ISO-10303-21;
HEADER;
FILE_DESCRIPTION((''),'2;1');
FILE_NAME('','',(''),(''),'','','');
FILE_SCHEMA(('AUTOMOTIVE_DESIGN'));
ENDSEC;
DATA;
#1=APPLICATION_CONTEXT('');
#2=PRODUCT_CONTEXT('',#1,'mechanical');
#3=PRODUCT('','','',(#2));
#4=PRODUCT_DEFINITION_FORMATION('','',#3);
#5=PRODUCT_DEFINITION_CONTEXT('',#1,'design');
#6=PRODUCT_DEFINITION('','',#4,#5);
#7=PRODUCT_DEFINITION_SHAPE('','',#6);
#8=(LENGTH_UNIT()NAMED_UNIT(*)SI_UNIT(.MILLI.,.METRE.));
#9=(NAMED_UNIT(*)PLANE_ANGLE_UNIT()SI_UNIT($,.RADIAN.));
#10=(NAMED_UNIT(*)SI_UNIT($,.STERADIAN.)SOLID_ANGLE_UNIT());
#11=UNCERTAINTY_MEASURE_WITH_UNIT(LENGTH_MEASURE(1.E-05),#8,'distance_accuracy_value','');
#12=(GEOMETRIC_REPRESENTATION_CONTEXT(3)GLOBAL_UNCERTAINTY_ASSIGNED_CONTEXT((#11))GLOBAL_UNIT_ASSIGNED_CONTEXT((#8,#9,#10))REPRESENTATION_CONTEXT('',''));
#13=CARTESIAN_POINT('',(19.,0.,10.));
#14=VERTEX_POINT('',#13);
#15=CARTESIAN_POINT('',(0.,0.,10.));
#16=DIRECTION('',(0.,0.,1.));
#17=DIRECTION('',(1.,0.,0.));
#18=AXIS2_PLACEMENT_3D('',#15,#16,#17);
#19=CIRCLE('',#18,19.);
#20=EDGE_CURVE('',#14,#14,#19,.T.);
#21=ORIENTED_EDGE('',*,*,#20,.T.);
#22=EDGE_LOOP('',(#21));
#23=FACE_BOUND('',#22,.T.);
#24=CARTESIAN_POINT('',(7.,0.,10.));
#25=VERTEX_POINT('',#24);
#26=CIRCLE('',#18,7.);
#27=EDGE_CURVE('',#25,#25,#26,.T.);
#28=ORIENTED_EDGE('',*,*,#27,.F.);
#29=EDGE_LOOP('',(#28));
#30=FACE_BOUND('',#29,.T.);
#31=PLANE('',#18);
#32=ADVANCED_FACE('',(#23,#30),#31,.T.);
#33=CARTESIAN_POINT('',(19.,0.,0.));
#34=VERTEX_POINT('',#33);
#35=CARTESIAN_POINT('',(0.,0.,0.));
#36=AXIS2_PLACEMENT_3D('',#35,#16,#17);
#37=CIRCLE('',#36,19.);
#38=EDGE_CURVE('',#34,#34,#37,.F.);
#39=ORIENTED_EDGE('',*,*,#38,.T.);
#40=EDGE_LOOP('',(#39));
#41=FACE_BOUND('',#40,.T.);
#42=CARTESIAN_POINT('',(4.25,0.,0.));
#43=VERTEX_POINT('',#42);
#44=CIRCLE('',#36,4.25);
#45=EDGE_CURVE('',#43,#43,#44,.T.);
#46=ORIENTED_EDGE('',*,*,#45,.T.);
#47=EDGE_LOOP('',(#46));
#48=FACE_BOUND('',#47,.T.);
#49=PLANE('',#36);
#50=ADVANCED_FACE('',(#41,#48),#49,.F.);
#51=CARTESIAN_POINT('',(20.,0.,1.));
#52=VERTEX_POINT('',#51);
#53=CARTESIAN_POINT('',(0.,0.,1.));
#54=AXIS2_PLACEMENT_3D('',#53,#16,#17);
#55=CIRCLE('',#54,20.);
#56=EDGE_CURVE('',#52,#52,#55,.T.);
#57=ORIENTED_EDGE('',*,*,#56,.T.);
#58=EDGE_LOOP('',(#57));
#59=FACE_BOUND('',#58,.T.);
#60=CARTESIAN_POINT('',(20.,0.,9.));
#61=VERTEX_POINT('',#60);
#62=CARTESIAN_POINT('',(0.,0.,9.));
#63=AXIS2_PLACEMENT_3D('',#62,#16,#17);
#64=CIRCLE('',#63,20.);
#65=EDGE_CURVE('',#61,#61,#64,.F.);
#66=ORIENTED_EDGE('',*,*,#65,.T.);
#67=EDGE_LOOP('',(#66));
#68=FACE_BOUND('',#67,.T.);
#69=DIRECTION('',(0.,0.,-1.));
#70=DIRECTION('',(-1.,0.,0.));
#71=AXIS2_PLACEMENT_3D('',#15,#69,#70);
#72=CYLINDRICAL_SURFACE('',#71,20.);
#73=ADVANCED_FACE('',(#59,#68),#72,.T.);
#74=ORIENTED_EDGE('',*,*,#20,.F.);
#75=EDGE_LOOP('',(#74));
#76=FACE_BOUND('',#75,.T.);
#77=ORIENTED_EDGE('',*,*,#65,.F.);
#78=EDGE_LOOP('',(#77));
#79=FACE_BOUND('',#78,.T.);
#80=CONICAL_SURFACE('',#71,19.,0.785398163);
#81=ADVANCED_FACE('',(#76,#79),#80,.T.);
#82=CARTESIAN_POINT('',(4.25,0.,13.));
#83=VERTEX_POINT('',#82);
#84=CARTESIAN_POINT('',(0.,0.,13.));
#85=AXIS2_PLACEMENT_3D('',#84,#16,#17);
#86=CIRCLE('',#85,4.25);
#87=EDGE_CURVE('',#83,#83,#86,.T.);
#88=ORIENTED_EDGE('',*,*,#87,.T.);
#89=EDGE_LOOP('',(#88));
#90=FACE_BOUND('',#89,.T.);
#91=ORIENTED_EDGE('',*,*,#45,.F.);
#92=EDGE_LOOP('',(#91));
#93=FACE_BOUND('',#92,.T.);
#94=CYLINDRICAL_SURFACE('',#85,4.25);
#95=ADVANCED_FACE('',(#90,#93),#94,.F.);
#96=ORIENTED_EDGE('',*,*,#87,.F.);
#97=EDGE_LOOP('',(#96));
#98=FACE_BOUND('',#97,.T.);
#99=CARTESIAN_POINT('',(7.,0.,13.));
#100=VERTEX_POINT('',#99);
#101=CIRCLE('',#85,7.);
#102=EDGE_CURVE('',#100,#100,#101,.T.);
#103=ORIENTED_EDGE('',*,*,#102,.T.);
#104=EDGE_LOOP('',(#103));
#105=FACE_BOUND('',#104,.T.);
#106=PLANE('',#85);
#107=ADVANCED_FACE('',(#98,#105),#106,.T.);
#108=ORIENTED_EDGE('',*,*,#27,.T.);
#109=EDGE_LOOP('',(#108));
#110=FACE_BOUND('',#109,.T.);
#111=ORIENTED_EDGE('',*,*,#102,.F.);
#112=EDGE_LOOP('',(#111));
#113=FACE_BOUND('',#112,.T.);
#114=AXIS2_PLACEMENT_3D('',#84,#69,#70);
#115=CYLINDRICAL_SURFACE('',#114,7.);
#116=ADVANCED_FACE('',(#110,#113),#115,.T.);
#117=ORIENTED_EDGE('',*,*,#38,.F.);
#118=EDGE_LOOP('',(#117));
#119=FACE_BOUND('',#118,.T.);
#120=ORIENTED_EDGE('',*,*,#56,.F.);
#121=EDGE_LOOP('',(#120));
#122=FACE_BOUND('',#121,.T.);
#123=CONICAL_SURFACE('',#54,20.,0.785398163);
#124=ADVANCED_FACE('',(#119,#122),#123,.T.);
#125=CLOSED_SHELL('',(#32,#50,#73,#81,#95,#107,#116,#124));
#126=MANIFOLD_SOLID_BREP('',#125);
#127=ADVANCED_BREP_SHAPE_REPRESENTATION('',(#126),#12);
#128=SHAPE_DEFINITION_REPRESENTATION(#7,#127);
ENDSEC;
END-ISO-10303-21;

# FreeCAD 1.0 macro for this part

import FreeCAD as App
import Part
import Sketcher
Q = App.Units.Quantity


def edges_at(feature, points):
    """Names of the edges that pass closest to the given points."""
    edges = feature.Shape.Edges
    near = lambda p: min(range(len(edges)), key=lambda i: edges[i].distToShape(Part.Vertex(*p))[0])
    return sorted({f"Edge{near(p) + 1}" for p in points})

doc = App.newDocument("Part")
body = doc.addObject("PartDesign::Body", "Body")

# Sketch on XY plane
sketch1 = body.newObject("Sketcher::SketchObject", "Sketch")
sketch1.AttachmentSupport = (doc.getObject("XY_Plane"), [""])
sketch1.MapMode = "FlatFace"
sketch1.addGeometry(Part.Circle(App.Vector(0, 0, 0), App.Vector(0, 0, 1), 20), False)
sketch1.addConstraint([
    Sketcher.Constraint("Coincident", 0, 3, -1, 1),
    Sketcher.Constraint("Diameter", 0, Q("40 mm")),
])
pad1 = body.newObject("PartDesign::Pad", "Pad")
pad1.Profile = sketch1
pad1.Length = 10
doc.recompute()

chamfer = body.newObject("PartDesign::Chamfer", "Chamfer")
chamfer.Base = (pad1, edges_at(pad1, [(-20, 0, 0), (-20, 0, 10)]))
chamfer.Size = 1

# Sketch on XY plane
sketch2 = body.newObject("Sketcher::SketchObject", "Sketch001")
sketch2.AttachmentSupport = (doc.getObject("XY_Plane"), [""])
sketch2.MapMode = "FlatFace"
sketch2.AttachmentOffset = App.Placement(App.Vector(0, 0, 10), App.Rotation())
sketch2.addGeometry(Part.Circle(App.Vector(0, 0, 0), App.Vector(0, 0, 1), 7), False)
sketch2.addConstraint([
    Sketcher.Constraint("Coincident", 0, 3, -1, 1),
    Sketcher.Constraint("Diameter", 0, Q("14 mm")),
])
pad2 = body.newObject("PartDesign::Pad", "Pad001")
pad2.Profile = sketch2
pad2.Length = 3

# Sketch on XY plane
sketch3 = body.newObject("Sketcher::SketchObject", "Sketch002")
sketch3.AttachmentSupport = (doc.getObject("XY_Plane"), [""])
sketch3.MapMode = "FlatFace"
sketch3.AttachmentOffset = App.Placement(App.Vector(0, 0, 13), App.Rotation())
sketch3.addGeometry(Part.Circle(App.Vector(0, 0, 0), App.Vector(0, 0, 1), 4.2), False)
sketch3.addConstraint([
    Sketcher.Constraint("Coincident", 0, 3, -1, 1),
    Sketcher.Constraint("Diameter", 0, Q("8.5 mm")),
])
doc.recompute()
hole = body.newObject("PartDesign::Hole", "Hole")
hole.Profile = sketch3
hole.ThreadType = "None"
hole.Diameter = 8.5
hole.DepthType = "ThroughAll"

doc.recompute()
